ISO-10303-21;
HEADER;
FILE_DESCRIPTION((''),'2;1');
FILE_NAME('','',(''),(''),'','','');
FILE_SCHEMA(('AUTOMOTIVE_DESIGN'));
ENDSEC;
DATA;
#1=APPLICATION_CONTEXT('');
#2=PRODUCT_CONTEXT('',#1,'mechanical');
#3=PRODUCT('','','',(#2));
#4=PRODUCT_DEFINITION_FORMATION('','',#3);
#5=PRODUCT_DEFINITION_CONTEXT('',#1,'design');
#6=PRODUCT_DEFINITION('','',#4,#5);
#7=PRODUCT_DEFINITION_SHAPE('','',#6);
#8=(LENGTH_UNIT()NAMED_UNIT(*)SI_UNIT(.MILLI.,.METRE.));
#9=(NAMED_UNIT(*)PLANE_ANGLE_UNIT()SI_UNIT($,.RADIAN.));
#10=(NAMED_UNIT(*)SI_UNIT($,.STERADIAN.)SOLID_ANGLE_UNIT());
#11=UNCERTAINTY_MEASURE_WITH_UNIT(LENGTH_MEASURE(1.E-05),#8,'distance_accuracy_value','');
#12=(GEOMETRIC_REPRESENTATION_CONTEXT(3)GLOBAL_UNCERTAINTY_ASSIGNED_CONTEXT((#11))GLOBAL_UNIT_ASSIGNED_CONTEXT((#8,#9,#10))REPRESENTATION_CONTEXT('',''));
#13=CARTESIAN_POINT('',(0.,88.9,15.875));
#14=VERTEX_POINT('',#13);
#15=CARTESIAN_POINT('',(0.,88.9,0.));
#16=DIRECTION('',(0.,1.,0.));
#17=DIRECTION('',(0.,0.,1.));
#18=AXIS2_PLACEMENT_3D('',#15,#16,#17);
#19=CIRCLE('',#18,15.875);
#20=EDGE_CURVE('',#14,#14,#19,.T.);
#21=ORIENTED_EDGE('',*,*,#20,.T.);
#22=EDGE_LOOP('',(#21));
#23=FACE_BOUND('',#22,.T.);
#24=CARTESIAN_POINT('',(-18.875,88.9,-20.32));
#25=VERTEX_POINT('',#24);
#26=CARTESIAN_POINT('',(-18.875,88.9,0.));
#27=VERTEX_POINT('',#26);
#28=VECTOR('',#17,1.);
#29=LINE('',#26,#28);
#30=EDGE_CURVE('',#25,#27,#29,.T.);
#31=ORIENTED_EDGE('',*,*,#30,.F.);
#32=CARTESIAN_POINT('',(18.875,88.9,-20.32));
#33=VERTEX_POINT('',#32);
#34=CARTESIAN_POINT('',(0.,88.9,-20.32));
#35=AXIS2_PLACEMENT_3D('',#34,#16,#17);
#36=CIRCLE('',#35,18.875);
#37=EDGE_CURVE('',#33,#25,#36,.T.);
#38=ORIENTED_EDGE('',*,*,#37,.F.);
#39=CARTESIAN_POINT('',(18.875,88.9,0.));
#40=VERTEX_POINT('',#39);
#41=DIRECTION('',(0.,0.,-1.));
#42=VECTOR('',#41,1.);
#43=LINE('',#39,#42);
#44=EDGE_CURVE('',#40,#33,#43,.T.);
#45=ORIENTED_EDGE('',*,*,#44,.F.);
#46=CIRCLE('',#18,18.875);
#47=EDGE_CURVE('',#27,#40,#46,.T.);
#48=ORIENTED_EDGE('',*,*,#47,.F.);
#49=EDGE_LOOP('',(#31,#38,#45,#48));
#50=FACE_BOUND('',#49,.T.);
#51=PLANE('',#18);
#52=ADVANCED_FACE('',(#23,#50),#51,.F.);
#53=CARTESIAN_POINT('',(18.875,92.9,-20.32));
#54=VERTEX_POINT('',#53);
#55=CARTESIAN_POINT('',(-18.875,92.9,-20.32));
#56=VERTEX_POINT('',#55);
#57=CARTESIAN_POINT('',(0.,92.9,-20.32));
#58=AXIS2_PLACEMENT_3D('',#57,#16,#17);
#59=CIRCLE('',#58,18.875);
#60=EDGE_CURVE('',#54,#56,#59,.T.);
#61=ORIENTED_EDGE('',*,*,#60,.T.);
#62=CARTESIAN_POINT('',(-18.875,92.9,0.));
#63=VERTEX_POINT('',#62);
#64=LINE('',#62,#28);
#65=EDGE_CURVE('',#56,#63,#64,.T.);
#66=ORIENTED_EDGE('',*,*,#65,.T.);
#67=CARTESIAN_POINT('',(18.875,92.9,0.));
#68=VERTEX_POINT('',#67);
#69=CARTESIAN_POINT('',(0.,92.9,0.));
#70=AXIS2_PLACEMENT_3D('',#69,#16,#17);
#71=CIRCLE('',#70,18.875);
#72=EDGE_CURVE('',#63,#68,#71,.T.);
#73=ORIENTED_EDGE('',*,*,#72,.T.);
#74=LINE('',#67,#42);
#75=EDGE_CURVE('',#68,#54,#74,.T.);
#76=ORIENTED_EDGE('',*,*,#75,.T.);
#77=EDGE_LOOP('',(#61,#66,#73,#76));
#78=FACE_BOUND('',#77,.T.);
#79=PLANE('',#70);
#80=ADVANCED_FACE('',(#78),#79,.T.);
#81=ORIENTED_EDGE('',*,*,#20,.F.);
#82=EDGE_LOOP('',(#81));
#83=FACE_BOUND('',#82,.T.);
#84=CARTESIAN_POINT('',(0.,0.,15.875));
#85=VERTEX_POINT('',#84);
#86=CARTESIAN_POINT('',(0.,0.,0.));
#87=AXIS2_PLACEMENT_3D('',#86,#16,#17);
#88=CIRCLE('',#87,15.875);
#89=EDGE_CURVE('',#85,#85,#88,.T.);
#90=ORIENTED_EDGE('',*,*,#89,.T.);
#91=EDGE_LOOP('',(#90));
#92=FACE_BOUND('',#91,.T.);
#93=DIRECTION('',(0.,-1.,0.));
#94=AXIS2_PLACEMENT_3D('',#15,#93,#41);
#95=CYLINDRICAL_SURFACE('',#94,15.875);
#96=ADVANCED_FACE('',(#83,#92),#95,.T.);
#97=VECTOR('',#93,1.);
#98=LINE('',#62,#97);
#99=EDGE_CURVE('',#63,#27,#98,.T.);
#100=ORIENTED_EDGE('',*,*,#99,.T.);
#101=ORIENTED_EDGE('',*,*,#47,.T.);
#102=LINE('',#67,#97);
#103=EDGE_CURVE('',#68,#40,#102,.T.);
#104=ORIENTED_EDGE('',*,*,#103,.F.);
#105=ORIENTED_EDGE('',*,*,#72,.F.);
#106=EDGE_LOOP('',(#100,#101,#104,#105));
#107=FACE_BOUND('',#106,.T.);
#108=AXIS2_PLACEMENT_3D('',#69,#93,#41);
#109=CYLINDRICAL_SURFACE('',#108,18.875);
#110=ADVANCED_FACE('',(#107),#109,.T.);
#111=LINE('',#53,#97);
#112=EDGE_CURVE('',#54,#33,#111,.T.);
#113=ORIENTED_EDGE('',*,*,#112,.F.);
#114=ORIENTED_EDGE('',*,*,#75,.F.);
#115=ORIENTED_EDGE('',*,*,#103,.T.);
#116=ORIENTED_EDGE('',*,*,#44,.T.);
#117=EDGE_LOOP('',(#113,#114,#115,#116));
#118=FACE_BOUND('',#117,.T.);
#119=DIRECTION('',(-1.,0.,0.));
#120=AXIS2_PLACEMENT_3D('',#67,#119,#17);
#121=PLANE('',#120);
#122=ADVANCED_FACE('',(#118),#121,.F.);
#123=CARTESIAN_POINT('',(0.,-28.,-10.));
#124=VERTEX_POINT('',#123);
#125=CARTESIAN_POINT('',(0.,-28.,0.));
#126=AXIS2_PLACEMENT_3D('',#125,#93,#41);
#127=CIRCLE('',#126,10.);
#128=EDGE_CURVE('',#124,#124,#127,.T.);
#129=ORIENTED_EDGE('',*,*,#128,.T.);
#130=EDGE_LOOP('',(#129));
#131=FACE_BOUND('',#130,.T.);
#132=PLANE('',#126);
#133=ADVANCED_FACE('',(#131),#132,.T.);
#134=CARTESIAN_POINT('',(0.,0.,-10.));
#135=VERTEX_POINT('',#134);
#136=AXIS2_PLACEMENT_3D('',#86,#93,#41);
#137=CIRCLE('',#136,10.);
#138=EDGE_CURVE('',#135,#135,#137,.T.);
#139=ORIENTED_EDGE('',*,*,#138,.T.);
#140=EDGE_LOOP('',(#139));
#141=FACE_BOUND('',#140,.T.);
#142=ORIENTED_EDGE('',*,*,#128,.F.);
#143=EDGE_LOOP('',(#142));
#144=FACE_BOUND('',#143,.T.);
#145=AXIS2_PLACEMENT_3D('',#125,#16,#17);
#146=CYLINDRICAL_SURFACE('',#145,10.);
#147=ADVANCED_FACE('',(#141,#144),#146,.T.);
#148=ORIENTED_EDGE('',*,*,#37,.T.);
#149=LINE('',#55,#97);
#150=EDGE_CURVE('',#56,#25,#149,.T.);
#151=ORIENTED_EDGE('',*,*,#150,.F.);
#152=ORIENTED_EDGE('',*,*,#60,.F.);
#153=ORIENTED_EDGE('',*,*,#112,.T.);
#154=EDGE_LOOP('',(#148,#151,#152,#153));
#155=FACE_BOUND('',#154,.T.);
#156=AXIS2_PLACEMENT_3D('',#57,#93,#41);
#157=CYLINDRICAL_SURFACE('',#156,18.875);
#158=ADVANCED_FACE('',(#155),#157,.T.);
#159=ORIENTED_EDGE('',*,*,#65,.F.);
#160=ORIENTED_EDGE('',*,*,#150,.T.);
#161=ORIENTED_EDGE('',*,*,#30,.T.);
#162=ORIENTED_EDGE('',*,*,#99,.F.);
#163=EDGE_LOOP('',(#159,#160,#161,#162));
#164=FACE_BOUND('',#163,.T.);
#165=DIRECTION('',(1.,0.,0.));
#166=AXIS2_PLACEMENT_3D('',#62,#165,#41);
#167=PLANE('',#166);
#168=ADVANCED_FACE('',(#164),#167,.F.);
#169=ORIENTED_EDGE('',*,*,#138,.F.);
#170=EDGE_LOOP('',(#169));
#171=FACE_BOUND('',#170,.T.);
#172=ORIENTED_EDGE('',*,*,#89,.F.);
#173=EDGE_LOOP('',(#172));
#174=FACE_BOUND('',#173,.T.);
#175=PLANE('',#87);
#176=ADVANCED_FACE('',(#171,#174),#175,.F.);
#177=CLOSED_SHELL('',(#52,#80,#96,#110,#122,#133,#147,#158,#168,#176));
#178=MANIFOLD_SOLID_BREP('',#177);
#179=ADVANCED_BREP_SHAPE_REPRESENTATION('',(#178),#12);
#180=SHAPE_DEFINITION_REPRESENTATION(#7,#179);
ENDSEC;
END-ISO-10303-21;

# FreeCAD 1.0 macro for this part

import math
import FreeCAD as App
import Part
import Sketcher
from FreeCAD import Vector

doc = App.newDocument("Part")
params = doc.addObject("Spreadsheet::Sheet", "Params")
for row, (alias, value) in enumerate([
    ("sketch1_diameter", "31.75 mm"),
    ("pad1_length", "88.9 mm"),
    ("sketch2_height", "20.32 mm"),
    ("pad2_length", "4 mm"),
    ("sketch3_diameter", "20 mm"),
    ("pad3_length", "28 mm"),
], start=1):
    params.set(f"A{row}", alias)
    params.set(f"B{row}", "=" + value)
    params.setAlias(f"B{row}", alias)

body = doc.addObject("PartDesign::Body", "Body")

# Sketch on XZ plane
sketch1 = body.newObject("Sketcher::SketchObject", "Sketch")
sketch1.AttachmentSupport = (doc.getObject("XZ_Plane"), [""])
sketch1.MapMode = "FlatFace"
sketch1.addGeometry(Part.Circle(Vector(0, 0, 0), Vector(0, 0, 1), 16), False)
sketch1.addConstraint([
    Sketcher.Constraint("Coincident", 0, 3, -1, 1),
    Sketcher.Constraint("Diameter", 0, 31.75),
])
sketch1.setExpression("Constraints[1]", "Params.sketch1_diameter")
pad1 = body.newObject("PartDesign::Pad", "Pad")
pad1.Profile = sketch1
pad1.setExpression("Length", "Params.pad1_length")
pad1.Reversed = True

# Sketch on XZ plane
sketch2 = body.newObject("Sketcher::SketchObject", "Sketch001")
sketch2.AttachmentSupport = (doc.getObject("XZ_Plane"), [""])
sketch2.MapMode = "FlatFace"
sketch2.AttachmentOffset = App.Placement(Vector(0, 0, -88.9), App.Rotation())
sketch2.addGeometry([
    Part.LineSegment(Vector(-19, -20, 0), Vector(-19, 0, 0)),
    Part.ArcOfCircle(Part.Circle(Vector(0, 0, 0), Vector(0, 0, 1), 19), math.radians(0), math.radians(180)),
    Part.LineSegment(Vector(19, 0, 0), Vector(19, -20, 0)),
    Part.ArcOfCircle(Part.Circle(Vector(0, -20, 0), Vector(0, 0, 1), 19), math.radians(180), math.radians(360)),
], False)
sketch2.addConstraint([
    Sketcher.Constraint("Tangent", 0, 2, 1, 2),
    Sketcher.Constraint("Tangent", 1, 1, 2, 1),
    Sketcher.Constraint("Tangent", 2, 2, 3, 2),
    Sketcher.Constraint("Tangent", 3, 1, 0, 1),
    Sketcher.Constraint("Vertical", 0),
    Sketcher.Constraint("Vertical", 2),
    Sketcher.Constraint("Coincident", 1, 3, -1, 1),
    Sketcher.Constraint("Radius", 1, 18.875),
    Sketcher.Constraint("DistanceY", 0, 1, 0, 2, 20.32),
])
sketch2.setExpression("Constraints[8]", "Params.sketch2_height")
pad2 = body.newObject("PartDesign::Pad", "Pad001")
pad2.Profile = sketch2
pad2.setExpression("Length", "Params.pad2_length")
pad2.Reversed = True

# Sketch on XZ plane
sketch3 = body.newObject("Sketcher::SketchObject", "Sketch002")
sketch3.AttachmentSupport = (doc.getObject("XZ_Plane"), [""])
sketch3.MapMode = "FlatFace"
sketch3.addGeometry(Part.Circle(Vector(0, 0, 0), Vector(0, 0, 1), 10), False)
sketch3.addConstraint([
    Sketcher.Constraint("Coincident", 0, 3, -1, 1),
    Sketcher.Constraint("Diameter", 0, 20.0),
])
sketch3.setExpression("Constraints[1]", "Params.sketch3_diameter")
pad3 = body.newObject("PartDesign::Pad", "Pad002")
pad3.Profile = sketch3
pad3.setExpression("Length", "Params.pad3_length")

doc.recompute()
